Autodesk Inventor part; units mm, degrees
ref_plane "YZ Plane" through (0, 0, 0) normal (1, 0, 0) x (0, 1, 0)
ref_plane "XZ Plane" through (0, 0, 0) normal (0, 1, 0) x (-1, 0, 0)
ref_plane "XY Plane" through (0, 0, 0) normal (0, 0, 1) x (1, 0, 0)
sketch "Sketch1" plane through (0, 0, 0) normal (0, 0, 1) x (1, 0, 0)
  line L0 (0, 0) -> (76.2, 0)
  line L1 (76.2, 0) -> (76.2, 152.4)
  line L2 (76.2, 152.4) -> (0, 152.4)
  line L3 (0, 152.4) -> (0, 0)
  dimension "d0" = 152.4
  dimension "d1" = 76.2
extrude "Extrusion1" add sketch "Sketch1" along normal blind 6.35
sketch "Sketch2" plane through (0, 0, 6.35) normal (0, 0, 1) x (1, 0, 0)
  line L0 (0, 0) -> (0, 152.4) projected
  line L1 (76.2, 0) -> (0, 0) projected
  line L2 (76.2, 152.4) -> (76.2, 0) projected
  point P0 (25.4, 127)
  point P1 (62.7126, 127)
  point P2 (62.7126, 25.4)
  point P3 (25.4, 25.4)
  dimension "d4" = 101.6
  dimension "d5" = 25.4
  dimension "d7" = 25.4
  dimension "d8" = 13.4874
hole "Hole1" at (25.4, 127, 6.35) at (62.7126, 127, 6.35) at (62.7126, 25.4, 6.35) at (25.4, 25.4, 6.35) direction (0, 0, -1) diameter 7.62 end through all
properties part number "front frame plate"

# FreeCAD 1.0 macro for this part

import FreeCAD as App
import Part
import Sketcher
from FreeCAD import Vector
Q = App.Units.Quantity


def add_polygon(sketch, points):
    """Adds a closed chain of lines whose ends are joined by coincident constraints."""
    first, n = sketch.GeometryCount, len(points)
    for a, b in zip(points, points[1:] + points[:1]):
        sketch.addGeometry(Part.LineSegment(App.Vector(*a, 0), App.Vector(*b, 0)), False)
    for i in range(n):
        sketch.addConstraint(Sketcher.Constraint("Coincident", first + i, 2, first + (i + 1) % n, 1))

doc = App.newDocument("Part")
body = doc.addObject("PartDesign::Body", "Body")

sketch1 = doc.addObject("Sketcher::SketchObject", "Sketch")
body.addObject(sketch1)
sketch1.AttachmentSupport = (doc.XY_Plane, [""])
sketch1.MapMode = "FlatFace"
add_polygon(sketch1, [(0, 152.4), (0, 0), (76.2, 0), (76.2, 152.4)])
sketch1.addConstraint([
    Sketcher.Constraint("Vertical", 0),
    Sketcher.Constraint("Horizontal", 1),
    Sketcher.Constraint("Vertical", 2),
    Sketcher.Constraint("Horizontal", 3),
    Sketcher.Constraint("Coincident", 0, 2, -1, 1),
    Sketcher.Constraint("DistanceX", 1, 1, 1, 2, Q("3 in")),
    Sketcher.Constraint("DistanceY", 0, 2, 0, 1, Q("6 in")),
])
pad1 = doc.addObject("PartDesign::Pad", "Pad")
body.addObject(pad1)
pad1.Profile = sketch1
pad1.Length = Q("0.25 in")

sketch2 = doc.addObject("Sketcher::SketchObject", "Sketch001")
body.addObject(sketch2)
sketch2.AttachmentSupport = (doc.XY_Plane, [""])
sketch2.MapMode = "FlatFace"
sketch2.AttachmentOffset = App.Placement(Vector(0, 0, 0.25 * 25.4), App.Rotation())
sketch2.addGeometry([
    Part.Circle(Vector(25.4, 127, 0), Vector(0, 0, 1), 3.81),
    Part.Circle(Vector(62.7126, 127, 0), Vector(0, 0, 1), 3.81),
    Part.Circle(Vector(62.7126, 25.4, 0), Vector(0, 0, 1), 3.81),
    Part.Circle(Vector(25.4, 25.4, 0), Vector(0, 0, 1), 3.81),
], False)
sketch2.addConstraint([
    Sketcher.Constraint("Equal", 0, 1),
    Sketcher.Constraint("Equal", 1, 2),
    Sketcher.Constraint("Equal", 2, 3),
    Sketcher.Constraint("Horizontal", 0, 3, 1, 3),
    Sketcher.Constraint("Horizontal", 2, 3, 3, 3),
    Sketcher.Constraint("Vertical", 1, 3, 2, 3),
    Sketcher.Constraint("Vertical", 0, 3, 3, 3),
    Sketcher.Constraint("Diameter", 0, Q("0.3 in")),
    Sketcher.Constraint("DistanceX", -1, 1, 0, 3, Q("1 in")),
    Sketcher.Constraint("DistanceY", -1, 1, 0, 3, Q("5 in")),
    Sketcher.Constraint("DistanceY", -1, 1, 2, 3, Q("1 in")),
    Sketcher.Constraint("DistanceX", -1, 1, 1, 3, Q("2.469 in")),
])
doc.recompute()
hole = doc.addObject("PartDesign::Hole", "Hole")
body.addObject(hole)
hole.Profile = sketch2
hole.ThreadType = "None"
hole.Diameter = Q("0.3 in")
hole.DepthType = "ThroughAll"

doc.recompute()
